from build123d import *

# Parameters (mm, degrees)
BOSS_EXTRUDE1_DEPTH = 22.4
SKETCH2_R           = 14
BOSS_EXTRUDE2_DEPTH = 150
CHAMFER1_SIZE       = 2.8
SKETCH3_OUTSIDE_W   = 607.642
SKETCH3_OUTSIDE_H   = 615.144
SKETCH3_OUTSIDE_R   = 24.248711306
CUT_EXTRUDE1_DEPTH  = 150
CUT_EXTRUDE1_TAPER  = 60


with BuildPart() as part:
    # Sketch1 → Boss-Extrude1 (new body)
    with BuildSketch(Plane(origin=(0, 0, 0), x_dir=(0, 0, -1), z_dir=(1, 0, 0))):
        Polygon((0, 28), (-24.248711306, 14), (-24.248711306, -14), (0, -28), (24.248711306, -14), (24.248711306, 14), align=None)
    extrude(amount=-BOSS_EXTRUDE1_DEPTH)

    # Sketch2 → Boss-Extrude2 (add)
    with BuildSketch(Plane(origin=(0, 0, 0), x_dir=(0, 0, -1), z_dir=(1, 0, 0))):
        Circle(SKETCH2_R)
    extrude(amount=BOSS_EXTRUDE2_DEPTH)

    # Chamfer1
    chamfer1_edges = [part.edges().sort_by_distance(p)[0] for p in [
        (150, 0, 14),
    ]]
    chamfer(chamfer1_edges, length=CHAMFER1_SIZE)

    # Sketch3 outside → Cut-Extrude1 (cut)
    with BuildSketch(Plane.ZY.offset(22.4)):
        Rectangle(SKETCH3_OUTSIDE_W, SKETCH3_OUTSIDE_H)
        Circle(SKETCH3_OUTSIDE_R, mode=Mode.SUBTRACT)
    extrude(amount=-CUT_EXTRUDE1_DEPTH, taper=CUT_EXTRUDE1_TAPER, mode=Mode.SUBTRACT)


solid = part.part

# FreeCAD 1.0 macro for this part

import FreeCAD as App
import Part
import Sketcher

V = App.Vector
Q = App.Units.Quantity


def edges_at(feature, points):
    """Names of the edges that pass closest to the given points."""
    edges = feature.Shape.Edges
    near = lambda p: min(range(len(edges)), key=lambda i: edges[i].distToShape(Part.Vertex(*p))[0])
    return sorted({f"Edge{near(p) + 1}" for p in points})


def add_polygon(sketch, points):
    """Adds a closed chain of lines whose ends are joined by coincident constraints."""
    first, n = sketch.GeometryCount, len(points)
    for a, b in zip(points, points[1:] + points[:1]):
        sketch.addGeometry(Part.LineSegment(App.Vector(*a, 0), App.Vector(*b, 0)), False)
    for i in range(n):
        sketch.addConstraint(Sketcher.Constraint("Coincident", first + i, 2, first + (i + 1) % n, 1))

doc = App.newDocument("Part")
body = doc.addObject("PartDesign::Body", "Body")

# Sketch on YZ plane
sketch1 = body.newObject("Sketcher::SketchObject", "Sketch")
sketch1.AttachmentSupport = (doc.getObject("YZ_Plane"), [""])
sketch1.MapMode = "FlatFace"
add_polygon(sketch1, [(28, 0), (14, 24), (-14, 24), (-28, 0), (-14, -24), (14, -24)])  # lines 0-5
sketch1.addConstraint(Sketcher.Constraint("Horizontal", 1))
sketch1.addConstraint(Sketcher.Constraint("Horizontal", 4))
sketch1.addConstraint(Sketcher.Constraint("Symmetric", 0, 2, 3, 2, -1, 1))
sketch1.addConstraint(Sketcher.Constraint("Symmetric", 2, 2, 5, 2, -1, 1))
sketch1.addConstraint(Sketcher.Constraint("PointOnObject", 2, 2, -1))
sketch1.addConstraint(Sketcher.Constraint("Parallel", 2, 5))
sketch1.addConstraint(Sketcher.Constraint("Vertical", 1, 2, 3, 2))
sketch1.addConstraint(Sketcher.Constraint("DistanceX", 1, 2, 1, 1, Q("28 mm")))
sketch1.addConstraint(Sketcher.Constraint("Angle", 0, Q("120 deg")))
sketch1.addConstraint(Sketcher.Constraint("Distance", 0, Q("28 mm")))
pad1 = body.newObject("PartDesign::Pad", "Pad")
pad1.Profile = sketch1
pad1.Length = 22.4
pad1.Reversed = True

# Sketch on YZ plane
sketch2 = body.newObject("Sketcher::SketchObject", "Sketch001")
sketch2.AttachmentSupport = (doc.getObject("YZ_Plane"), [""])
sketch2.MapMode = "FlatFace"
sketch2.addGeometry(Part.Circle(V(0, 0, 0), V(0, 0, 1), 14), False)
sketch2.addConstraint(Sketcher.Constraint("Coincident", 0, 3, -1, 1))
sketch2.addConstraint(Sketcher.Constraint("Diameter", 0, Q("28 mm")))
pad2 = body.newObject("PartDesign::Pad", "Pad001")
pad2.Profile = sketch2
pad2.Length = 150
doc.recompute()

chamfer = body.newObject("PartDesign::Chamfer", "Chamfer")
chamfer.Base = (pad2, edges_at(pad2, [(150, 0, 14)]))
chamfer.Size = 2.8

# Sketch on YZ plane
sketch3 = body.newObject("Sketcher::SketchObject", "Sketch002")
sketch3.AttachmentSupport = (doc.getObject("YZ_Plane"), [""])
sketch3.MapMode = "FlatFace"
sketch3.AttachmentOffset = App.Placement(V(0, 0, -22.4), App.Rotation())
add_polygon(sketch3, [(308, -304), (-308, -304), (-308, 304), (308, 304)])  # lines 0-3
sketch3.addGeometry(Part.Circle(V(0, 0, 0), V(0, 0, 1), 24), False)  # 4
sketch3.addConstraint(Sketcher.Constraint("Horizontal", 0))
sketch3.addConstraint(Sketcher.Constraint("Vertical", 1))
sketch3.addConstraint(Sketcher.Constraint("Horizontal", 2))
sketch3.addConstraint(Sketcher.Constraint("Vertical", 3))
sketch3.addConstraint(Sketcher.Constraint("Coincident", 4, 3, -1, 1))
sketch3.addConstraint(Sketcher.Constraint("Symmetric", 0, 2, 2, 2, -1, 1))
sketch3.addConstraint(Sketcher.Constraint("DistanceX", 0, 2, 0, 1, Q("615.144 mm")))
sketch3.addConstraint(Sketcher.Constraint("DistanceY", 1, 1, 1, 2, Q("607.642 mm")))
sketch3.addConstraint(Sketcher.Constraint("Diameter", 4, Q("48.497423 mm")))
pocket1 = body.newObject("PartDesign::Pocket", "Pocket")
pocket1.Profile = sketch3
pocket1.Length = 150
pocket1.Reversed = True
pocket1.TaperAngle = 60

doc.recompute()
